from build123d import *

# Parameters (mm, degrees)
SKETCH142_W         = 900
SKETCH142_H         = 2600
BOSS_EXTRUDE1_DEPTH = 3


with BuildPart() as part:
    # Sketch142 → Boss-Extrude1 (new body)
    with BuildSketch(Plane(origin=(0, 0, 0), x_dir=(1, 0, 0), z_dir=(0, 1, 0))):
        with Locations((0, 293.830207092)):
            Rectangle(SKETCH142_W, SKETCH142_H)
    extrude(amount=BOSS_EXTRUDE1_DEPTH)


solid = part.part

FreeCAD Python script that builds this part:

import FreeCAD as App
import Part
import Sketcher

V = App.Vector


def add_polygon(sketch, points):
    """Adds a closed chain of lines whose ends are joined by coincident constraints."""
    first, n = sketch.GeometryCount, len(points)
    for a, b in zip(points, points[1:] + points[:1]):
        sketch.addGeometry(Part.LineSegment(App.Vector(*a, 0), App.Vector(*b, 0)), False)
    for i in range(n):
        sketch.addConstraint(Sketcher.Constraint("Coincident", first + i, 2, first + (i + 1) % n, 1))

doc = App.newDocument("Part")
body = doc.addObject("PartDesign::Body", "Body")

# Sketch on XZ plane
sketch1 = body.newObject("Sketcher::SketchObject", "Sketch")
sketch1.AttachmentSupport = (doc.getObject("XZ_Plane"), [""])
sketch1.MapMode = "FlatFace"
add_polygon(sketch1, [(-450, -1594), (-450, 1006), (450, 1006), (450, -1594)])  # lines 0-3
sketch1.addConstraint([
    Sketcher.Constraint("Vertical", 0),
    Sketcher.Constraint("Horizontal", 1),
    Sketcher.Constraint("Vertical", 2),
    Sketcher.Constraint("Horizontal", 3),
    Sketcher.Constraint("DistanceX", 1, 1, 1, 2, 900.0),
    Sketcher.Constraint("DistanceY", 0, 1, 0, 2, 2600.0),
    Sketcher.Constraint("DistanceX", 0, 2, -1, 1, 450.0),
    Sketcher.Constraint("DistanceY", -1, 1, 0, 2, 1006.169793),
])
pad1 = body.newObject("PartDesign::Pad", "Pad")
pad1.Profile = sketch1
pad1.Length = 3
pad1.Reversed = True

doc.recompute()
